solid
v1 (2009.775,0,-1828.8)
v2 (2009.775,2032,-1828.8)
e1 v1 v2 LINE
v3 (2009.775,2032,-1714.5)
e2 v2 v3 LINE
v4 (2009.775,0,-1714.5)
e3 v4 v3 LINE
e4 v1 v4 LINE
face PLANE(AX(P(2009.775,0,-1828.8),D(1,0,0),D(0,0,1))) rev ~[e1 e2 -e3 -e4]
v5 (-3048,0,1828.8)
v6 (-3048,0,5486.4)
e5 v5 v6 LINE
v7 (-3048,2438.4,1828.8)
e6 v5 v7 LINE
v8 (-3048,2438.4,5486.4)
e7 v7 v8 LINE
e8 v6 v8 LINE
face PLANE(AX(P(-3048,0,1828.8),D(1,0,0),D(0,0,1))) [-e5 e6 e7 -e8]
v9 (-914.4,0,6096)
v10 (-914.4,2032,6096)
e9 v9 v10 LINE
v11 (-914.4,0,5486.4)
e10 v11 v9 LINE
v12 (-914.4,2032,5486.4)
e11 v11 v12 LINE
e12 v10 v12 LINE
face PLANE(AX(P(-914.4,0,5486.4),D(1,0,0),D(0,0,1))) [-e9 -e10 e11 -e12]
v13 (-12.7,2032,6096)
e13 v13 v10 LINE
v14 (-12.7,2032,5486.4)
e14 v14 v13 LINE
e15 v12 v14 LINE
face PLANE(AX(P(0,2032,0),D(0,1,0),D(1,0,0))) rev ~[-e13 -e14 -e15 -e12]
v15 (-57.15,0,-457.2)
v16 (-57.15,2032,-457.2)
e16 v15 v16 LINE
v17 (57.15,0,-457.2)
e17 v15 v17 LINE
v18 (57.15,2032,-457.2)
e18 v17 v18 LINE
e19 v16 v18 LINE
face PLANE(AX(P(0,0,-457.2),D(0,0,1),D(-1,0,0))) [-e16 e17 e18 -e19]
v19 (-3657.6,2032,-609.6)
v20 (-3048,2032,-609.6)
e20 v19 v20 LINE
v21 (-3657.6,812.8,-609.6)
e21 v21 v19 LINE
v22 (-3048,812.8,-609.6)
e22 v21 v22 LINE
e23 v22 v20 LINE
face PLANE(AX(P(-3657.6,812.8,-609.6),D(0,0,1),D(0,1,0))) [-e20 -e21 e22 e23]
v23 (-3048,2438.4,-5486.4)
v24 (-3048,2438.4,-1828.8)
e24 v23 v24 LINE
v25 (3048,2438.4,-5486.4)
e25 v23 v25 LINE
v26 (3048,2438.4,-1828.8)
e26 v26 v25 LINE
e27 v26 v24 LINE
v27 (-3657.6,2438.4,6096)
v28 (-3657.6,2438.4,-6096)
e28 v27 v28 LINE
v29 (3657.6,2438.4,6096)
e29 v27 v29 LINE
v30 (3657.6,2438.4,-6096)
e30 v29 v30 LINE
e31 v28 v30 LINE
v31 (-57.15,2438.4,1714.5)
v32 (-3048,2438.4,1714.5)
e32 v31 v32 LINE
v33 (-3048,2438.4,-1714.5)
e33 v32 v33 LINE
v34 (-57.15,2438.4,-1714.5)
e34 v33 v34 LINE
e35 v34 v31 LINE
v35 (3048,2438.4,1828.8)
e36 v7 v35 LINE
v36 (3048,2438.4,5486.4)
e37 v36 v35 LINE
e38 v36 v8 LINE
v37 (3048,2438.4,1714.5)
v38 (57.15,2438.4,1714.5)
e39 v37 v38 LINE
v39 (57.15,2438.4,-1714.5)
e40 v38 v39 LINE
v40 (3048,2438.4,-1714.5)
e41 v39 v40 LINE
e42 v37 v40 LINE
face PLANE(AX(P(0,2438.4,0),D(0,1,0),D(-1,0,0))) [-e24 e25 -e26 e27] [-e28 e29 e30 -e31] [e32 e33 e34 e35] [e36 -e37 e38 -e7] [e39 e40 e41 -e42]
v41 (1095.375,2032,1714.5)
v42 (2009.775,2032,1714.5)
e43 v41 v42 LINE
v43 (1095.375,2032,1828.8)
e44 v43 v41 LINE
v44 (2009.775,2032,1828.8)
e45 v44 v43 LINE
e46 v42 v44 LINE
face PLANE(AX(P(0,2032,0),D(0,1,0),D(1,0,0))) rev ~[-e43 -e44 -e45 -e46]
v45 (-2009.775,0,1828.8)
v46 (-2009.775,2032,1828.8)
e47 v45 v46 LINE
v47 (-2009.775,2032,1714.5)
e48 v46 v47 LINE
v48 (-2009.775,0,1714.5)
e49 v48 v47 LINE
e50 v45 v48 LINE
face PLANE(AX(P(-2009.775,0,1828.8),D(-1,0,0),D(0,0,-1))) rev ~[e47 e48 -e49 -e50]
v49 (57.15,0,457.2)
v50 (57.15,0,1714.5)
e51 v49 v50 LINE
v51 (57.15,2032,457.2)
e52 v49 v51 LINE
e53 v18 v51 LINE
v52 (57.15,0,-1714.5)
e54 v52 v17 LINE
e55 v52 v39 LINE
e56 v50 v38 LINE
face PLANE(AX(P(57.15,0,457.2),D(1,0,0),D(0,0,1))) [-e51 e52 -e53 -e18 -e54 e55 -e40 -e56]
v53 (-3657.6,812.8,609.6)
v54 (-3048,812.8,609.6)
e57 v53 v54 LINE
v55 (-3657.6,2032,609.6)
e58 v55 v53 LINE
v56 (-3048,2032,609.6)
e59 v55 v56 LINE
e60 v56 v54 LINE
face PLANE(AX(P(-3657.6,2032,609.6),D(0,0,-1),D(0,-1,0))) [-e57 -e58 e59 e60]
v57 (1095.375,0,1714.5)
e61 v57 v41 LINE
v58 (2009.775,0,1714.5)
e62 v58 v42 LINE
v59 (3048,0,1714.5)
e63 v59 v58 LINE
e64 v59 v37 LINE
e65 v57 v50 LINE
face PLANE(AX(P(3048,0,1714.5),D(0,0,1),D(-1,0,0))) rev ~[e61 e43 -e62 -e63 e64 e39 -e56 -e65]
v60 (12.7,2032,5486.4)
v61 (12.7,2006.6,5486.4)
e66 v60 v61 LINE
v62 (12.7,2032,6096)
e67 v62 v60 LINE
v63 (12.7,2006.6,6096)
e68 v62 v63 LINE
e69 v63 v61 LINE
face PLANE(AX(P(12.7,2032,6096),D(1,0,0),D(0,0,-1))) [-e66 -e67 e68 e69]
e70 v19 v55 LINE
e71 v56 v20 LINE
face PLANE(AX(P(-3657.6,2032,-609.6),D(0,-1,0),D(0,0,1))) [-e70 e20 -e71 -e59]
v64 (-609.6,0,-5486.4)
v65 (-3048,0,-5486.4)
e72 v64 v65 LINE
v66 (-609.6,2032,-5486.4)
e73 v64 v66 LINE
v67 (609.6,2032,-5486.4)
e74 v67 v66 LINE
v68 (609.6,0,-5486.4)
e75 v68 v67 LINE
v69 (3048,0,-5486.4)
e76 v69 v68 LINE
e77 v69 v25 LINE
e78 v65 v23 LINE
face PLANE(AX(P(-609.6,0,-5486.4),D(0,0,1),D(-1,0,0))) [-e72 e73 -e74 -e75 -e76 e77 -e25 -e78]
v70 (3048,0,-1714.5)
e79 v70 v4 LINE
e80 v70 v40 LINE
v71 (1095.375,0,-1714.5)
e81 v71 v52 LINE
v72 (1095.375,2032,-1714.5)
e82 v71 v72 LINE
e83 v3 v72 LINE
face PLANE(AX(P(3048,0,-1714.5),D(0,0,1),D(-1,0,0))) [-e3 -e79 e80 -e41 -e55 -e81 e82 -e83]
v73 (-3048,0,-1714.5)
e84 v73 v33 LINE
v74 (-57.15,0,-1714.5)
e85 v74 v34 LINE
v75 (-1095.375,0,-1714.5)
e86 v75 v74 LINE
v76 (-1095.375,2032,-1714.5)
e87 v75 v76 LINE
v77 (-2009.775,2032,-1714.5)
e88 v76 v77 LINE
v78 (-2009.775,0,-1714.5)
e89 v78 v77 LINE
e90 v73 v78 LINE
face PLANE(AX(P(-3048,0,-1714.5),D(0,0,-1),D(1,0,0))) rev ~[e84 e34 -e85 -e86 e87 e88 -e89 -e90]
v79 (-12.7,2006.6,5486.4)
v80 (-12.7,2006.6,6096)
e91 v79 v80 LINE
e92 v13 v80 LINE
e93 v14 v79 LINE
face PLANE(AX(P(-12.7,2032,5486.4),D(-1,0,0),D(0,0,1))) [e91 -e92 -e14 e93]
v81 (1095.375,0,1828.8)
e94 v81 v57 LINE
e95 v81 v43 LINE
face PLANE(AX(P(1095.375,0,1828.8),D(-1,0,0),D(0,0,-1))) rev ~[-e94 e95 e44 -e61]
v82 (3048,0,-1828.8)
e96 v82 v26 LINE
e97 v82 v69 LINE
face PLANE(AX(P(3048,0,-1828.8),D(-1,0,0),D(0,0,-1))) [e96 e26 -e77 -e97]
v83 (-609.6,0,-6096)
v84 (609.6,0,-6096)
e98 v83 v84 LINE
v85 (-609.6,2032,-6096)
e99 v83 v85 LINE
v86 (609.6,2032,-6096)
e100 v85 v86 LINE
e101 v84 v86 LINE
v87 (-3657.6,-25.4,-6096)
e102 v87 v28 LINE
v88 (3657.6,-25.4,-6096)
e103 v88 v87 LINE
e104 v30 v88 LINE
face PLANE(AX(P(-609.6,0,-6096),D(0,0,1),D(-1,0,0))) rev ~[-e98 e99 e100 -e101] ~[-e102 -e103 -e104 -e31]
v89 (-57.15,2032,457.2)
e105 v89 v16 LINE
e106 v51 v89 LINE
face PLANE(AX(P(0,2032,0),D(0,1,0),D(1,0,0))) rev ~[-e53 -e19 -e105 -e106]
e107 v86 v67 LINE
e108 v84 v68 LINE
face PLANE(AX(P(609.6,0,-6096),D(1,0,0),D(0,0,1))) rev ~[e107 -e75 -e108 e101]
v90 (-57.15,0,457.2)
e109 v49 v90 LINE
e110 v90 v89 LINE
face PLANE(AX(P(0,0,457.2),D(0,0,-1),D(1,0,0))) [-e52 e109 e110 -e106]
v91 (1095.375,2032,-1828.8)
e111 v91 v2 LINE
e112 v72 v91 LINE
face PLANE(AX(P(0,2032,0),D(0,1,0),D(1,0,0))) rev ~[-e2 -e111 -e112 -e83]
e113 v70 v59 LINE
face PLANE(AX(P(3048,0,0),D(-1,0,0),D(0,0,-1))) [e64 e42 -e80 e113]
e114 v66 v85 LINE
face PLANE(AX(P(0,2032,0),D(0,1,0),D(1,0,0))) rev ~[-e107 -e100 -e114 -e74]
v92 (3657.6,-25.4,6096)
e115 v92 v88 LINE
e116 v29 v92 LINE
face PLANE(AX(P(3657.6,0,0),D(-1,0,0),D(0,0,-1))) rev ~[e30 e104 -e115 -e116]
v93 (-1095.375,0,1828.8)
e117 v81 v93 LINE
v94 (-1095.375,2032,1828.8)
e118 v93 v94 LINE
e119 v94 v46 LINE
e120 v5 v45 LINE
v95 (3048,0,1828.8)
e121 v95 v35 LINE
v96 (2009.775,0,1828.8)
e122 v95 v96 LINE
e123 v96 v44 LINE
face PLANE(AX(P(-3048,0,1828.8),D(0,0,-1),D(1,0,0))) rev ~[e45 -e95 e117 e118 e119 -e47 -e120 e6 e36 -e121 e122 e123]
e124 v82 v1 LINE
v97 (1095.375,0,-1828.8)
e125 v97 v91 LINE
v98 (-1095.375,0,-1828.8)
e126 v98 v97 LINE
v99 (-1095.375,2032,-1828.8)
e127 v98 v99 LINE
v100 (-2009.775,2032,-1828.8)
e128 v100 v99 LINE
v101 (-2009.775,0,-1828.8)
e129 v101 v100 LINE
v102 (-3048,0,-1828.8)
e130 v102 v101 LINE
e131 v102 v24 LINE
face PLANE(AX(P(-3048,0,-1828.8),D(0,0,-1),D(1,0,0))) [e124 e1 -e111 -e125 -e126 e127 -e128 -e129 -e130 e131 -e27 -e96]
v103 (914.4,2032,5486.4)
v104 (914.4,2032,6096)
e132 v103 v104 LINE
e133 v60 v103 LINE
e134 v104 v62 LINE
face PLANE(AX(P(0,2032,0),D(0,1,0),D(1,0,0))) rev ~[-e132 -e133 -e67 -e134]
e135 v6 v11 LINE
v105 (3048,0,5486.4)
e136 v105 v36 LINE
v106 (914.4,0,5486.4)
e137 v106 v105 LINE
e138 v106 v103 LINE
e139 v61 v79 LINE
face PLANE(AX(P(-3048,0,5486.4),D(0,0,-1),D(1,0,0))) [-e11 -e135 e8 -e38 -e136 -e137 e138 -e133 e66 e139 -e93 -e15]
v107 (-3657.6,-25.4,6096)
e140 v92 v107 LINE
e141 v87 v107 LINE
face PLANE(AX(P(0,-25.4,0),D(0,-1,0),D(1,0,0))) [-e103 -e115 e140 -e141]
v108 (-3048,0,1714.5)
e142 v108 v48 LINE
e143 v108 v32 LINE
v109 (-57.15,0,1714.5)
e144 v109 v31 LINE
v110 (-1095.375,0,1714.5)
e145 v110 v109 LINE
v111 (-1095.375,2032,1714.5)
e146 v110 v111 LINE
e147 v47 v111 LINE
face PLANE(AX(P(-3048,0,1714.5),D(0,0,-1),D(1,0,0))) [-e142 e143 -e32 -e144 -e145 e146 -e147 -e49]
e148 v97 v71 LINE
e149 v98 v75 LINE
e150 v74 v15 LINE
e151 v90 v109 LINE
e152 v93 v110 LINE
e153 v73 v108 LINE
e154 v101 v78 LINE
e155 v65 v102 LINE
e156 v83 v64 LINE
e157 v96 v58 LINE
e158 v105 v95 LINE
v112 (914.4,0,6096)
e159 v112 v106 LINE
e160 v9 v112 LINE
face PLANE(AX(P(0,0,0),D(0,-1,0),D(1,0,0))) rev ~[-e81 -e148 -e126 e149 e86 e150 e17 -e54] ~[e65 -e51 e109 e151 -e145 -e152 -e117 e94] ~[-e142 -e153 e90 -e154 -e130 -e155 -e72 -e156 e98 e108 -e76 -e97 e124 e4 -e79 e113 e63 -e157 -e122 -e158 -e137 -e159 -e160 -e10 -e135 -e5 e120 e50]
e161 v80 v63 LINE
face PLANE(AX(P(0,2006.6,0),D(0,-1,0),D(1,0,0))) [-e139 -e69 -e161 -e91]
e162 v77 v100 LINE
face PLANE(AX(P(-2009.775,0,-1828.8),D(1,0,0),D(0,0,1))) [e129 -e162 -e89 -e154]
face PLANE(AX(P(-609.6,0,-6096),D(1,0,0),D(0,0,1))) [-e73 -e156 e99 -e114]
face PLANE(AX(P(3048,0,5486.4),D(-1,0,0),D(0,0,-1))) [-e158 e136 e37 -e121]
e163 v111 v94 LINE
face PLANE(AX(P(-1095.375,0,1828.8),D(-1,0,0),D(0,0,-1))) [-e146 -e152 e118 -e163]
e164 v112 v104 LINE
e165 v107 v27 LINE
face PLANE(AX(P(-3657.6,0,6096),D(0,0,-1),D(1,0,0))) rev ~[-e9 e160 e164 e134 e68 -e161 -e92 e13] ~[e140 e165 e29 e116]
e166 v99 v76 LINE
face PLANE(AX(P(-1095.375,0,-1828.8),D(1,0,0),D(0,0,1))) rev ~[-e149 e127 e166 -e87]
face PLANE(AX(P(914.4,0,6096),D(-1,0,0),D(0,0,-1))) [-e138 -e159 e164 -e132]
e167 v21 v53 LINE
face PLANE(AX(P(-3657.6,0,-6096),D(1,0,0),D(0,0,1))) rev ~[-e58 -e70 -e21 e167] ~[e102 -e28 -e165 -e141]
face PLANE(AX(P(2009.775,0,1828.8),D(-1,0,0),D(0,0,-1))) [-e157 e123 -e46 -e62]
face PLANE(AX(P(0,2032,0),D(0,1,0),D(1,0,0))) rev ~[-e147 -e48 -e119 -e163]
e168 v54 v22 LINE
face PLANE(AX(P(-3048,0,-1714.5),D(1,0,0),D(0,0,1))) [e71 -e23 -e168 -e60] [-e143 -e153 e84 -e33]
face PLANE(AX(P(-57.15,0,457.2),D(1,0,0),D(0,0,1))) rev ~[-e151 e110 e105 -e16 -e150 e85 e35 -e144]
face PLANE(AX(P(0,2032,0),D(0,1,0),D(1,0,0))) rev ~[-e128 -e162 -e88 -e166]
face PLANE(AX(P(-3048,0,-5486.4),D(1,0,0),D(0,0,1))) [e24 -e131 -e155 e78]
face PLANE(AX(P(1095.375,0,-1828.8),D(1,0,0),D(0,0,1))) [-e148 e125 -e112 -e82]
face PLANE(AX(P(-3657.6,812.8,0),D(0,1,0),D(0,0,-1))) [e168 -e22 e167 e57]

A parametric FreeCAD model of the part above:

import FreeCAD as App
import Part
import Sketcher
Q = App.Units.Quantity

doc = App.newDocument("Part")
params = doc.addObject("Spreadsheet::Sheet", "Params")
for row, (alias, value) in enumerate([
    ("sketch1_height", "480 in"),
    ("sketch1_height2", "24 in"),
    ("sketch1_width", "4.5 in"),
    ("pad1_length", "96 in"),
    ("sketch2_width", "48 in"),
    ("pocket1_length", "24 in"),
    ("sketch3_width", "36 in"),
    ("sketch3_width2", "48 in"),
    ("sketch3_width3", "72 in"),
    ("sketch3_height", "24 in"),
    ("sketch3_width4", "4.5 in"),
    ("pad2_length", "16 in"),
    ("sketch4_width", "1 in"),
    ("sketch4_height", "24 in"),
    ("pad3_length", "1 in"),
    ("sketch5_width", "288 in"),
    ("sketch5_height", "480 in"),
    ("pad4_length", "1 in"),
], start=1):
    params.set(f"A{row}", alias)
    params.set(f"B{row}", "=" + value)
    params.setAlias(f"B{row}", alias)

body = doc.addObject("PartDesign::Body", "Body")
body.AllowCompound = True

# Sketch on XZ plane
sketch1 = body.newObject("Sketcher::SketchObject", "Sketch")
sketch1.AttachmentSupport = (doc.getObject("XZ_Plane"), [""])
sketch1.MapMode = "FlatFace"
sketch1.addGeometry(Part.LineSegment(App.Vector(-610, -6096, 0), App.Vector(-3658, -6096, 0)), False)
sketch1.addGeometry(Part.LineSegment(App.Vector(-3658, -6096, 0), App.Vector(-3658, 6096, 0)), False)
sketch1.addGeometry(Part.LineSegment(App.Vector(-3658, 6096, 0), App.Vector(-914, 6096, 0)), False)
sketch1.addGeometry(Part.LineSegment(App.Vector(-914, 6096, 0), App.Vector(-914, 5486, 0)), False)
sketch1.addGeometry(Part.LineSegment(App.Vector(-914, 5486, 0), App.Vector(-3048, 5486, 0)), False)
sketch1.addGeometry(Part.LineSegment(App.Vector(-3048, 5486, 0), App.Vector(-3048, 1829, 0)), False)
sketch1.addGeometry(Part.LineSegment(App.Vector(-3048, 1829, 0), App.Vector(-2010, 1829, 0)), False)
sketch1.addGeometry(Part.LineSegment(App.Vector(-2010, 1829, 0), App.Vector(-2010, 1714, 0)), False)
sketch1.addGeometry(Part.LineSegment(App.Vector(-2010, 1714, 0), App.Vector(-3048, 1714, 0)), False)
sketch1.addGeometry(Part.LineSegment(App.Vector(-3048, 1714, 0), App.Vector(-3048, -1714, 0)), False)
sketch1.addGeometry(Part.LineSegment(App.Vector(-3048, -1714, 0), App.Vector(-2010, -1714, 0)), False)
sketch1.addGeometry(Part.LineSegment(App.Vector(-2010, -1714, 0), App.Vector(-2010, -1829, 0)), False)
sketch1.addGeometry(Part.LineSegment(App.Vector(-2010, -1829, 0), App.Vector(-3048, -1829, 0)), False)
sketch1.addGeometry(Part.LineSegment(App.Vector(-3048, -1829, 0), App.Vector(-3048, -5486, 0)), False)
sketch1.addGeometry(Part.LineSegment(App.Vector(-3048, -5486, 0), App.Vector(-610, -5486, 0)), False)
sketch1.addGeometry(Part.LineSegment(App.Vector(-610, -5486, 0), App.Vector(-610, -6096, 0)), False)
sketch1.addGeometry(Part.LineSegment(App.Vector(-57, -457, 0), App.Vector(57, -457, 0)), False)
sketch1.addGeometry(Part.LineSegment(App.Vector(57, -457, 0), App.Vector(57, -1714, 0)), False)
sketch1.addGeometry(Part.LineSegment(App.Vector(57, -1714, 0), App.Vector(1095, -1714, 0)), False)
sketch1.addGeometry(Part.LineSegment(App.Vector(1095, -1714, 0), App.Vector(1095, -1829, 0)), False)
sketch1.addGeometry(Part.LineSegment(App.Vector(1095, -1829, 0), App.Vector(-1095, -1829, 0)), False)
sketch1.addGeometry(Part.LineSegment(App.Vector(-1095, -1829, 0), App.Vector(-1095, -1714, 0)), False)
sketch1.addGeometry(Part.LineSegment(App.Vector(-1095, -1714, 0), App.Vector(-57, -1714, 0)), False)
sketch1.addGeometry(Part.LineSegment(App.Vector(-57, -1714, 0), App.Vector(-57, -457, 0)), False)
sketch1.addGeometry(Part.LineSegment(App.Vector(3048, -1714, 0), App.Vector(3048, 1714, 0)), False)
sketch1.addGeometry(Part.LineSegment(App.Vector(3048, 1714, 0), App.Vector(2010, 1714, 0)), False)
sketch1.addGeometry(Part.LineSegment(App.Vector(2010, 1714, 0), App.Vector(2010, 1829, 0)), False)
sketch1.addGeometry(Part.LineSegment(App.Vector(2010, 1829, 0), App.Vector(3048, 1829, 0)), False)
sketch1.addGeometry(Part.LineSegment(App.Vector(3048, 1829, 0), App.Vector(3048, 5486, 0)), False)
sketch1.addGeometry(Part.LineSegment(App.Vector(3048, 5486, 0), App.Vector(914, 5486, 0)), False)
sketch1.addGeometry(Part.LineSegment(App.Vector(914, 5486, 0), App.Vector(914, 6096, 0)), False)
sketch1.addGeometry(Part.LineSegment(App.Vector(914, 6096, 0), App.Vector(3658, 6096, 0)), False)
sketch1.addGeometry(Part.LineSegment(App.Vector(3658, 6096, 0), App.Vector(3658, -6096, 0)), False)
sketch1.addGeometry(Part.LineSegment(App.Vector(3658, -6096, 0), App.Vector(610, -6096, 0)), False)
sketch1.addGeometry(Part.LineSegment(App.Vector(610, -6096, 0), App.Vector(610, -5486, 0)), False)
sketch1.addGeometry(Part.LineSegment(App.Vector(610, -5486, 0), App.Vector(3048, -5486, 0)), False)
sketch1.addGeometry(Part.LineSegment(App.Vector(3048, -5486, 0), App.Vector(3048, -1829, 0)), False)
sketch1.addGeometry(Part.LineSegment(App.Vector(3048, -1829, 0), App.Vector(2010, -1829, 0)), False)
sketch1.addGeometry(Part.LineSegment(App.Vector(2010, -1829, 0), App.Vector(2010, -1714, 0)), False)
sketch1.addGeometry(Part.LineSegment(App.Vector(2010, -1714, 0), App.Vector(3048, -1714, 0)), False)
sketch1.addGeometry(Part.LineSegment(App.Vector(57, 457, 0), App.Vector(-57, 457, 0)), False)
sketch1.addGeometry(Part.LineSegment(App.Vector(-57, 457, 0), App.Vector(-57, 1714, 0)), False)
sketch1.addGeometry(Part.LineSegment(App.Vector(-57, 1714, 0), App.Vector(-1095, 1714, 0)), False)
sketch1.addGeometry(Part.LineSegment(App.Vector(-1095, 1714, 0), App.Vector(-1095, 1829, 0)), False)
sketch1.addGeometry(Part.LineSegment(App.Vector(-1095, 1829, 0), App.Vector(1095, 1829, 0)), False)
sketch1.addGeometry(Part.LineSegment(App.Vector(1095, 1829, 0), App.Vector(1095, 1714, 0)), False)
sketch1.addGeometry(Part.LineSegment(App.Vector(1095, 1714, 0), App.Vector(57, 1714, 0)), False)
sketch1.addGeometry(Part.LineSegment(App.Vector(57, 1714, 0), App.Vector(57, 457, 0)), False)
sketch1.addConstraint(Sketcher.Constraint("Coincident", 0, 2, 1, 1))
sketch1.addConstraint(Sketcher.Constraint("Coincident", 1, 2, 2, 1))
sketch1.addConstraint(Sketcher.Constraint("Coincident", 2, 2, 3, 1))
sketch1.addConstraint(Sketcher.Constraint("Coincident", 3, 2, 4, 1))
sketch1.addConstraint(Sketcher.Constraint("Coincident", 4, 2, 5, 1))
sketch1.addConstraint(Sketcher.Constraint("Coincident", 5, 2, 6, 1))
sketch1.addConstraint(Sketcher.Constraint("Coincident", 6, 2, 7, 1))
sketch1.addConstraint(Sketcher.Constraint("Coincident", 7, 2, 8, 1))
sketch1.addConstraint(Sketcher.Constraint("Coincident", 8, 2, 9, 1))
sketch1.addConstraint(Sketcher.Constraint("Coincident", 9, 2, 10, 1))
sketch1.addConstraint(Sketcher.Constraint("Coincident", 10, 2, 11, 1))
sketch1.addConstraint(Sketcher.Constraint("Coincident", 11, 2, 12, 1))
sketch1.addConstraint(Sketcher.Constraint("Coincident", 12, 2, 13, 1))
sketch1.addConstraint(Sketcher.Constraint("Coincident", 13, 2, 14, 1))
sketch1.addConstraint(Sketcher.Constraint("Coincident", 14, 2, 15, 1))
sketch1.addConstraint(Sketcher.Constraint("Coincident", 15, 2, 0, 1))
sketch1.addConstraint(Sketcher.Constraint("Coincident", 16, 2, 17, 1))
sketch1.addConstraint(Sketcher.Constraint("Coincident", 17, 2, 18, 1))
sketch1.addConstraint(Sketcher.Constraint("Coincident", 18, 2, 19, 1))
sketch1.addConstraint(Sketcher.Constraint("Coincident", 19, 2, 20, 1))
sketch1.addConstraint(Sketcher.Constraint("Coincident", 20, 2, 21, 1))
sketch1.addConstraint(Sketcher.Constraint("Coincident", 21, 2, 22, 1))
sketch1.addConstraint(Sketcher.Constraint("Coincident", 22, 2, 23, 1))
sketch1.addConstraint(Sketcher.Constraint("Coincident", 23, 2, 16, 1))
sketch1.addConstraint(Sketcher.Constraint("Coincident", 24, 2, 25, 1))
sketch1.addConstraint(Sketcher.Constraint("Coincident", 25, 2, 26, 1))
sketch1.addConstraint(Sketcher.Constraint("Coincident", 26, 2, 27, 1))
sketch1.addConstraint(Sketcher.Constraint("Coincident", 27, 2, 28, 1))
sketch1.addConstraint(Sketcher.Constraint("Coincident", 28, 2, 29, 1))
sketch1.addConstraint(Sketcher.Constraint("Coincident", 29, 2, 30, 1))
sketch1.addConstraint(Sketcher.Constraint("Coincident", 30, 2, 31, 1))
sketch1.addConstraint(Sketcher.Constraint("Coincident", 31, 2, 32, 1))
sketch1.addConstraint(Sketcher.Constraint("Coincident", 32, 2, 33, 1))
sketch1.addConstraint(Sketcher.Constraint("Coincident", 33, 2, 34, 1))
sketch1.addConstraint(Sketcher.Constraint("Coincident", 34, 2, 35, 1))
sketch1.addConstraint(Sketcher.Constraint("Coincident", 35, 2, 36, 1))
sketch1.addConstraint(Sketcher.Constraint("Coincident", 36, 2, 37, 1))
sketch1.addConstraint(Sketcher.Constraint("Coincident", 37, 2, 38, 1))
sketch1.addConstraint(Sketcher.Constraint("Coincident", 38, 2, 39, 1))
sketch1.addConstraint(Sketcher.Constraint("Coincident", 39, 2, 24, 1))
sketch1.addConstraint(Sketcher.Constraint("Coincident", 40, 2, 41, 1))
sketch1.addConstraint(Sketcher.Constraint("Coincident", 41, 2, 42, 1))
sketch1.addConstraint(Sketcher.Constraint("Coincident", 42, 2, 43, 1))
sketch1.addConstraint(Sketcher.Constraint("Coincident", 43, 2, 44, 1))
sketch1.addConstraint(Sketcher.Constraint("Coincident", 44, 2, 45, 1))
sketch1.addConstraint(Sketcher.Constraint("Coincident", 45, 2, 46, 1))
sketch1.addConstraint(Sketcher.Constraint("Coincident", 46, 2, 47, 1))
sketch1.addConstraint(Sketcher.Constraint("Coincident", 47, 2, 40, 1))
sketch1.addConstraint(Sketcher.Constraint("Horizontal", 0))
sketch1.addConstraint(Sketcher.Constraint("Vertical", 1))
sketch1.addConstraint(Sketcher.Constraint("Horizontal", 2))
sketch1.addConstraint(Sketcher.Constraint("Vertical", 3))
sketch1.addConstraint(Sketcher.Constraint("Horizontal", 4))
sketch1.addConstraint(Sketcher.Constraint("Vertical", 5))
sketch1.addConstraint(Sketcher.Constraint("Horizontal", 6))
sketch1.addConstraint(Sketcher.Constraint("Vertical", 7))
sketch1.addConstraint(Sketcher.Constraint("Horizontal", 8))
sketch1.addConstraint(Sketcher.Constraint("Vertical", 9))
sketch1.addConstraint(Sketcher.Constraint("Horizontal", 10))
sketch1.addConstraint(Sketcher.Constraint("Vertical", 11))
sketch1.addConstraint(Sketcher.Constraint("Horizontal", 12))
sketch1.addConstraint(Sketcher.Constraint("Vertical", 13))
sketch1.addConstraint(Sketcher.Constraint("Horizontal", 14))
sketch1.addConstraint(Sketcher.Constraint("Vertical", 15))
sketch1.addConstraint(Sketcher.Constraint("Horizontal", 16))
sketch1.addConstraint(Sketcher.Constraint("Vertical", 17))
sketch1.addConstraint(Sketcher.Constraint("Horizontal", 18))
sketch1.addConstraint(Sketcher.Constraint("Vertical", 19))
sketch1.addConstraint(Sketcher.Constraint("Horizontal", 20))
sketch1.addConstraint(Sketcher.Constraint("Vertical", 21))
sketch1.addConstraint(Sketcher.Constraint("Horizontal", 22))
sketch1.addConstraint(Sketcher.Constraint("Vertical", 23))
sketch1.addConstraint(Sketcher.Constraint("Vertical", 24))
sketch1.addConstraint(Sketcher.Constraint("Horizontal", 25))
sketch1.addConstraint(Sketcher.Constraint("Vertical", 26))
sketch1.addConstraint(Sketcher.Constraint("Horizontal", 27))
sketch1.addConstraint(Sketcher.Constraint("Vertical", 28))
sketch1.addConstraint(Sketcher.Constraint("Horizontal", 29))
sketch1.addConstraint(Sketcher.Constraint("Vertical", 30))
sketch1.addConstraint(Sketcher.Constraint("Horizontal", 31))
sketch1.addConstraint(Sketcher.Constraint("Vertical", 32))
sketch1.addConstraint(Sketcher.Constraint("Horizontal", 33))
sketch1.addConstraint(Sketcher.Constraint("Vertical", 34))
sketch1.addConstraint(Sketcher.Constraint("Horizontal", 35))
sketch1.addConstraint(Sketcher.Constraint("Vertical", 36))
sketch1.addConstraint(Sketcher.Constraint("Horizontal", 37))
sketch1.addConstraint(Sketcher.Constraint("Vertical", 38))
sketch1.addConstraint(Sketcher.Constraint("Horizontal", 39))
sketch1.addConstraint(Sketcher.Constraint("Horizontal", 40))
sketch1.addConstraint(Sketcher.Constraint("Vertical", 41))
sketch1.addConstraint(Sketcher.Constraint("Horizontal", 42))
sketch1.addConstraint(Sketcher.Constraint("Vertical", 43))
sketch1.addConstraint(Sketcher.Constraint("Horizontal", 44))
sketch1.addConstraint(Sketcher.Constraint("Vertical", 45))
sketch1.addConstraint(Sketcher.Constraint("Horizontal", 46))
sketch1.addConstraint(Sketcher.Constraint("Vertical", 47))
sketch1.addConstraint(Sketcher.Constraint("Symmetric", 9, 2, 24, 2, -1, 1))
sketch1.addConstraint(Sketcher.Constraint("Symmetric", 11, 2, 26, 2, -1, 1))
sketch1.addConstraint(Sketcher.Constraint("Symmetric", 13, 2, 28, 2, -1, 1))
sketch1.addConstraint(Sketcher.Constraint("Symmetric", 0, 2, 31, 2, -1, 1))
sketch1.addConstraint(Sketcher.Constraint("Symmetric", 4, 2, 35, 2, -1, 1))
sketch1.addConstraint(Sketcher.Constraint("Symmetric", 6, 2, 37, 2, -1, 1))
sketch1.addConstraint(Sketcher.Constraint("Symmetric", 16, 2, 40, 2, -1, 1))
sketch1.addConstraint(Sketcher.Constraint("Symmetric", 18, 2, 42, 2, -1, 1))
sketch1.addConstraint(Sketcher.Constraint("Symmetric", 20, 2, 44, 2, -1, 1))
sketch1.addConstraint(Sketcher.Constraint("Symmetric", 22, 2, 46, 2, -1, 1))
sketch1.addConstraint(Sketcher.Constraint("Symmetric", 18, 2, 21, 2, -2))
sketch1.addConstraint(Sketcher.Constraint("Symmetric", 7, 2, 25, 2, -2))
sketch1.addConstraint(Sketcher.Constraint("Symmetric", 5, 2, 27, 2, -2))
sketch1.addConstraint(Sketcher.Constraint("Symmetric", 3, 2, 29, 2, -2))
sketch1.addConstraint(Sketcher.Constraint("Symmetric", 15, 2, 33, 2, -2))
sketch1.addConstraint(Sketcher.Constraint("Horizontal", 10, 2, 17, 2))
sketch1.addConstraint(Sketcher.Constraint("Horizontal", 12, 2, 19, 2))
sketch1.addConstraint(Sketcher.Constraint("Horizontal", 2, 2, 30, 2))
sketch1.addConstraint(Sketcher.Constraint("Horizontal", 22, 2, 38, 2))
sketch1.addConstraint(Sketcher.Constraint("Vertical", 5, 2, 8, 2))
sketch1.addConstraint(Sketcher.Constraint("Vertical", 23, 2, 40, 2))
sketch1.addConstraint(Sketcher.Constraint("Equal", 12, 18))
sketch1.addConstraint(Sketcher.Constraint("Equal", 40, 7))
sketch1.addConstraint(Sketcher.Constraint("DistanceY", 1, 1, 1, 2, Q("480 in")))
sketch1.addConstraint(Sketcher.Constraint("DistanceY", 3, 2, 3, 1, Q("24 in")))
sketch1.addConstraint(Sketcher.Constraint("DistanceX", 16, 1, 16, 2, Q("4.5 in")))
sketch1.addConstraint(Sketcher.Constraint("DistanceX", 2, 2, -1, 1, Q("36 in")))
sketch1.addConstraint(Sketcher.Constraint("DistanceY", -1, 1, 5, 2, Q("72 in")))
sketch1.addConstraint(Sketcher.Constraint("DistanceX", 14, 2, -1, 1, Q("24 in")))
sketch1.addConstraint(Sketcher.Constraint("DistanceX", 1, 2, 4, 2, Q("24 in")))
sketch1.addConstraint(Sketcher.Constraint("DistanceX", 11, 2, 20, 2, Q("36 in")))
sketch1.addConstraint(Sketcher.Constraint("DistanceX", 15, 2, 32, 2, Q("168 in")))
sketch1.addConstraint(Sketcher.Constraint("DistanceY", 23, 2, 40, 2, Q("36 in")))
sketch1.setExpression("Constraints[119]", "Params.sketch1_height")
sketch1.setExpression("Constraints[120]", "Params.sketch1_height2")
sketch1.setExpression("Constraints[121]", "Params.sketch1_width")
pad1 = body.newObject("PartDesign::Pad", "Pad")
pad1.Profile = sketch1
pad1.setExpression("Length", "Params.pad1_length")
pad1.Reversed = True

# Sketch on YZ plane
sketch2 = body.newObject("Sketcher::SketchObject", "Sketch001")
sketch2.AttachmentSupport = (doc.getObject("YZ_Plane"), [""])
sketch2.MapMode = "FlatFace"
sketch2.AttachmentOffset = App.Placement(App.Vector(0, 0, -144 * 25.4), App.Rotation())
sketch2.addGeometry(Part.LineSegment(App.Vector(2032, -610, 0), App.Vector(813, -610, 0)), False)
sketch2.addGeometry(Part.LineSegment(App.Vector(813, -610, 0), App.Vector(813, 610, 0)), False)
sketch2.addGeometry(Part.LineSegment(App.Vector(813, 610, 0), App.Vector(2032, 610, 0)), False)
sketch2.addGeometry(Part.LineSegment(App.Vector(2032, 610, 0), App.Vector(2032, -610, 0)), False)
sketch2.addConstraint(Sketcher.Constraint("Coincident", 0, 2, 1, 1))
sketch2.addConstraint(Sketcher.Constraint("Coincident", 1, 2, 2, 1))
sketch2.addConstraint(Sketcher.Constraint("Coincident", 2, 2, 3, 1))
sketch2.addConstraint(Sketcher.Constraint("Coincident", 3, 2, 0, 1))
sketch2.addConstraint(Sketcher.Constraint("Horizontal", 0))
sketch2.addConstraint(Sketcher.Constraint("Vertical", 1))
sketch2.addConstraint(Sketcher.Constraint("Horizontal", 2))
sketch2.addConstraint(Sketcher.Constraint("Vertical", 3))
sketch2.addConstraint(Sketcher.Constraint("Equal", 2, 1))
sketch2.addConstraint(Sketcher.Constraint("DistanceX", 0, 2, 0, 1, Q("48 in")))
sketch2.addConstraint(Sketcher.Constraint("DistanceX", -1, 1, 0, 2, Q("32 in")))
sketch2.addConstraint(Sketcher.Constraint("DistanceY", 0, 2, -1, 1, Q("24 in")))
sketch2.setExpression("Constraints[9]", "Params.sketch2_width")
pocket1 = body.newObject("PartDesign::Pocket", "Pocket")
pocket1.Profile = sketch2
pocket1.setExpression("Length", "Params.pocket1_length")
pocket1.Reversed = True

# Sketch on XZ plane
sketch3 = body.newObject("Sketcher::SketchObject", "Sketch002")
sketch3.AttachmentSupport = (doc.getObject("XZ_Plane"), [""])
sketch3.MapMode = "FlatFace"
sketch3.AttachmentOffset = App.Placement(App.Vector(0, 0, -96 * 25.4), App.Rotation())
sketch3.addGeometry(Part.LineSegment(App.Vector(1095, -1829, 0), App.Vector(1095, -1714, 0)), False)
sketch3.addGeometry(Part.LineSegment(App.Vector(1095, -1714, 0), App.Vector(2010, -1714, 0)), False)
sketch3.addGeometry(Part.LineSegment(App.Vector(2010, -1714, 0), App.Vector(2010, -1829, 0)), False)
sketch3.addGeometry(Part.LineSegment(App.Vector(2010, -1829, 0), App.Vector(1095, -1829, 0)), False)
sketch3.addGeometry(Part.LineSegment(App.Vector(57, 457, 0), App.Vector(57, -457, 0)), False)
sketch3.addGeometry(Part.LineSegment(App.Vector(57, -457, 0), App.Vector(-57, -457, 0)), False)
sketch3.addGeometry(Part.LineSegment(App.Vector(-57, -457, 0), App.Vector(-57, 457, 0)), False)
sketch3.addGeometry(Part.LineSegment(App.Vector(-57, 457, 0), App.Vector(57, 457, 0)), False)
sketch3.addGeometry(Part.LineSegment(App.Vector(-1095, -1714, 0), App.Vector(-1095, -1829, 0)), False)
sketch3.addGeometry(Part.LineSegment(App.Vector(-1095, -1829, 0), App.Vector(-2010, -1829, 0)), False)
sketch3.addGeometry(Part.LineSegment(App.Vector(-2010, -1829, 0), App.Vector(-2010, -1714, 0)), False)
sketch3.addGeometry(Part.LineSegment(App.Vector(-2010, -1714, 0), App.Vector(-1095, -1714, 0)), False)
sketch3.addGeometry(Part.LineSegment(App.Vector(2010, 1714, 0), App.Vector(1095, 1714, 0)), False)
sketch3.addGeometry(Part.LineSegment(App.Vector(1095, 1714, 0), App.Vector(1095, 1829, 0)), False)
sketch3.addGeometry(Part.LineSegment(App.Vector(1095, 1829, 0), App.Vector(2010, 1829, 0)), False)
sketch3.addGeometry(Part.LineSegment(App.Vector(2010, 1829, 0), App.Vector(2010, 1714, 0)), False)
sketch3.addGeometry(Part.LineSegment(App.Vector(-1095, 1829, 0), App.Vector(-1095, 1714, 0)), False)
sketch3.addGeometry(Part.LineSegment(App.Vector(-1095, 1714, 0), App.Vector(-2010, 1714, 0)), False)
sketch3.addGeometry(Part.LineSegment(App.Vector(-2010, 1714, 0), App.Vector(-2010, 1829, 0)), False)
sketch3.addGeometry(Part.LineSegment(App.Vector(-2010, 1829, 0), App.Vector(-1095, 1829, 0)), False)
sketch3.addGeometry(Part.LineSegment(App.Vector(-610, -5486, 0), App.Vector(610, -5486, 0)), False)
sketch3.addGeometry(Part.LineSegment(App.Vector(610, -5486, 0), App.Vector(610, -6096, 0)), False)
sketch3.addGeometry(Part.LineSegment(App.Vector(610, -6096, 0), App.Vector(-610, -6096, 0)), False)
sketch3.addGeometry(Part.LineSegment(App.Vector(-610, -6096, 0), App.Vector(-610, -5486, 0)), False)
sketch3.addGeometry(Part.LineSegment(App.Vector(914, 6096, 0), App.Vector(914, 5486, 0)), False)
sketch3.addGeometry(Part.LineSegment(App.Vector(914, 5486, 0), App.Vector(-914, 5486, 0)), False)
sketch3.addGeometry(Part.LineSegment(App.Vector(-914, 5486, 0), App.Vector(-914, 6096, 0)), False)
sketch3.addGeometry(Part.LineSegment(App.Vector(-914, 6096, 0), App.Vector(914, 6096, 0)), False)
sketch3.addConstraint(Sketcher.Constraint("Coincident", 0, 2, 1, 1))
sketch3.addConstraint(Sketcher.Constraint("Coincident", 1, 2, 2, 1))
sketch3.addConstraint(Sketcher.Constraint("Coincident", 2, 2, 3, 1))
sketch3.addConstraint(Sketcher.Constraint("Coincident", 3, 2, 0, 1))
sketch3.addConstraint(Sketcher.Constraint("Coincident", 4, 2, 5, 1))
sketch3.addConstraint(Sketcher.Constraint("Coincident", 5, 2, 6, 1))
sketch3.addConstraint(Sketcher.Constraint("Coincident", 6, 2, 7, 1))
sketch3.addConstraint(Sketcher.Constraint("Coincident", 7, 2, 4, 1))
sketch3.addConstraint(Sketcher.Constraint("Coincident", 8, 2, 9, 1))
sketch3.addConstraint(Sketcher.Constraint("Coincident", 9, 2, 10, 1))
sketch3.addConstraint(Sketcher.Constraint("Coincident", 10, 2, 11, 1))
sketch3.addConstraint(Sketcher.Constraint("Coincident", 11, 2, 8, 1))
sketch3.addConstraint(Sketcher.Constraint("Coincident", 12, 2, 13, 1))
sketch3.addConstraint(Sketcher.Constraint("Coincident", 13, 2, 14, 1))
sketch3.addConstraint(Sketcher.Constraint("Coincident", 14, 2, 15, 1))
sketch3.addConstraint(Sketcher.Constraint("Coincident", 15, 2, 12, 1))
sketch3.addConstraint(Sketcher.Constraint("Coincident", 16, 2, 17, 1))
sketch3.addConstraint(Sketcher.Constraint("Coincident", 17, 2, 18, 1))
sketch3.addConstraint(Sketcher.Constraint("Coincident", 18, 2, 19, 1))
sketch3.addConstraint(Sketcher.Constraint("Coincident", 19, 2, 16, 1))
sketch3.addConstraint(Sketcher.Constraint("Coincident", 20, 2, 21, 1))
sketch3.addConstraint(Sketcher.Constraint("Coincident", 21, 2, 22, 1))
sketch3.addConstraint(Sketcher.Constraint("Coincident", 22, 2, 23, 1))
sketch3.addConstraint(Sketcher.Constraint("Coincident", 23, 2, 20, 1))
sketch3.addConstraint(Sketcher.Constraint("Coincident", 24, 2, 25, 1))
sketch3.addConstraint(Sketcher.Constraint("Coincident", 25, 2, 26, 1))
sketch3.addConstraint(Sketcher.Constraint("Coincident", 26, 2, 27, 1))
sketch3.addConstraint(Sketcher.Constraint("Coincident", 27, 2, 24, 1))
sketch3.addConstraint(Sketcher.Constraint("Vertical", 0))
sketch3.addConstraint(Sketcher.Constraint("Horizontal", 1))
sketch3.addConstraint(Sketcher.Constraint("Vertical", 2))
sketch3.addConstraint(Sketcher.Constraint("Horizontal", 3))
sketch3.addConstraint(Sketcher.Constraint("Vertical", 4))
sketch3.addConstraint(Sketcher.Constraint("Horizontal", 5))
sketch3.addConstraint(Sketcher.Constraint("Vertical", 6))
sketch3.addConstraint(Sketcher.Constraint("Horizontal", 7))
sketch3.addConstraint(Sketcher.Constraint("Vertical", 8))
sketch3.addConstraint(Sketcher.Constraint("Horizontal", 9))
sketch3.addConstraint(Sketcher.Constraint("Vertical", 10))
sketch3.addConstraint(Sketcher.Constraint("Horizontal", 11))
sketch3.addConstraint(Sketcher.Constraint("Horizontal", 12))
sketch3.addConstraint(Sketcher.Constraint("Vertical", 13))
sketch3.addConstraint(Sketcher.Constraint("Horizontal", 14))
sketch3.addConstraint(Sketcher.Constraint("Vertical", 15))
sketch3.addConstraint(Sketcher.Constraint("Vertical", 16))
sketch3.addConstraint(Sketcher.Constraint("Horizontal", 17))
sketch3.addConstraint(Sketcher.Constraint("Vertical", 18))
sketch3.addConstraint(Sketcher.Constraint("Horizontal", 19))
sketch3.addConstraint(Sketcher.Constraint("Horizontal", 20))
sketch3.addConstraint(Sketcher.Constraint("Vertical", 21))
sketch3.addConstraint(Sketcher.Constraint("Horizontal", 22))
sketch3.addConstraint(Sketcher.Constraint("Vertical", 23))
sketch3.addConstraint(Sketcher.Constraint("Vertical", 24))
sketch3.addConstraint(Sketcher.Constraint("Horizontal", 25))
sketch3.addConstraint(Sketcher.Constraint("Vertical", 26))
sketch3.addConstraint(Sketcher.Constraint("Horizontal", 27))
sketch3.addConstraint(Sketcher.Constraint("Symmetric", 4, 2, 6, 2, -1, 1))
sketch3.addConstraint(Sketcher.Constraint("Symmetric", 11, 2, 12, 2, -1, 1))
sketch3.addConstraint(Sketcher.Constraint("Symmetric", 9, 2, 14, 2, -1, 1))
sketch3.addConstraint(Sketcher.Constraint("Symmetric", 0, 2, 16, 2, -1, 1))
sketch3.addConstraint(Sketcher.Constraint("Symmetric", 2, 2, 18, 2, -1, 1))
sketch3.addConstraint(Sketcher.Constraint("Symmetric", 3, 2, 8, 2, -2))
sketch3.addConstraint(Sketcher.Constraint("Symmetric", 1, 2, 10, 2, -2))
sketch3.addConstraint(Sketcher.Constraint("Equal", 7, 0))
sketch3.addConstraint(Sketcher.Constraint("Equal", 19, 4))
sketch3.addConstraint(Sketcher.Constraint("Equal", 23, 24))
sketch3.addConstraint(Sketcher.Constraint("DistanceX", 1, 1, 1, 2, Q("36 in")))
sketch3.addConstraint(Sketcher.Constraint("DistanceX", 20, 1, 20, 2, Q("48 in")))
sketch3.addConstraint(Sketcher.Constraint("DistanceX", 25, 2, 25, 1, Q("72 in")))
sketch3.addConstraint(Sketcher.Constraint("DistanceY", 21, 2, 21, 1, Q("24 in")))
sketch3.addConstraint(Sketcher.Constraint("DistanceX", 5, 2, 5, 1, Q("4.5 in")))
sketch3.addConstraint(Sketcher.Constraint("DistanceY", 2, 2, -1, 1, Q("72 in")))
sketch3.addConstraint(Sketcher.Constraint("DistanceX", -1, 1, 20, 2, Q("24 in")))
sketch3.addConstraint(Sketcher.Constraint("DistanceY", 20, 2, -1, 1, Q("216 in")))
sketch3.addConstraint(Sketcher.Constraint("DistanceX", -1, 1, 24, 2, Q("36 in")))
sketch3.addConstraint(Sketcher.Constraint("DistanceY", -1, 1, 24, 2, Q("216 in")))
sketch3.addConstraint(Sketcher.Constraint("DistanceX", 8, 2, 3, 2, Q("86.25 in")))
sketch3.setExpression("Constraints[66]", "Params.sketch3_width")
sketch3.setExpression("Constraints[67]", "Params.sketch3_width2")
sketch3.setExpression("Constraints[68]", "Params.sketch3_width3")
sketch3.setExpression("Constraints[69]", "Params.sketch3_height")
sketch3.setExpression("Constraints[70]", "Params.sketch3_width4")
pad2 = body.newObject("PartDesign::Pad", "Pad001")
pad2.Profile = sketch3
pad2.setExpression("Length", "Params.pad2_length")

# Sketch on XZ plane
sketch4 = body.newObject("Sketcher::SketchObject", "Sketch003")
sketch4.AttachmentSupport = (doc.getObject("XZ_Plane"), [""])
sketch4.MapMode = "FlatFace"
sketch4.AttachmentOffset = App.Placement(App.Vector(0, 0, -80 * 25.4), App.Rotation())
sketch4.addGeometry(Part.LineSegment(App.Vector(13, 5486, 0), App.Vector(13, 6096, 0)), False)
sketch4.addGeometry(Part.LineSegment(App.Vector(13, 6096, 0), App.Vector(-13, 6096, 0)), False)
sketch4.addGeometry(Part.LineSegment(App.Vector(-13, 6096, 0), App.Vector(-13, 5486, 0)), False)
sketch4.addGeometry(Part.LineSegment(App.Vector(-13, 5486, 0), App.Vector(13, 5486, 0)), False)
sketch4.addConstraint(Sketcher.Constraint("Coincident", 0, 2, 1, 1))
sketch4.addConstraint(Sketcher.Constraint("Coincident", 1, 2, 2, 1))
sketch4.addConstraint(Sketcher.Constraint("Coincident", 2, 2, 3, 1))
sketch4.addConstraint(Sketcher.Constraint("Coincident", 3, 2, 0, 1))
sketch4.addConstraint(Sketcher.Constraint("Vertical", 0))
sketch4.addConstraint(Sketcher.Constraint("Horizontal", 1))
sketch4.addConstraint(Sketcher.Constraint("Vertical", 2))
sketch4.addConstraint(Sketcher.Constraint("Horizontal", 3))
sketch4.addConstraint(Sketcher.Constraint("DistanceX", 1, 2, 1, 1, Q("1 in")))
sketch4.addConstraint(Sketcher.Constraint("DistanceY", 0, 1, 0, 2, Q("24 in")))
sketch4.addConstraint(Sketcher.Constraint("DistanceY", -1, 1, 0, 2, Q("240 in")))
sketch4.addConstraint(Sketcher.Constraint("DistanceX", -1, 1, 0, 2, Q("0.5 in")))
sketch4.setExpression("Constraints[8]", "Params.sketch4_width")
sketch4.setExpression("Constraints[9]", "Params.sketch4_height")
pad3 = body.newObject("PartDesign::Pad", "Pad002")
pad3.Profile = sketch4
pad3.setExpression("Length", "Params.pad3_length")

# Sketch on XZ plane
sketch5 = body.newObject("Sketcher::SketchObject", "Sketch004")
sketch5.AttachmentSupport = (doc.getObject("XZ_Plane"), [""])
sketch5.MapMode = "FlatFace"
sketch5.addGeometry(Part.LineSegment(App.Vector(3658, -6096, 0), App.Vector(3658, 6096, 0)), False)
sketch5.addGeometry(Part.LineSegment(App.Vector(3658, 6096, 0), App.Vector(-3658, 6096, 0)), False)
sketch5.addGeometry(Part.LineSegment(App.Vector(-3658, 6096, 0), App.Vector(-3658, -6096, 0)), False)
sketch5.addGeometry(Part.LineSegment(App.Vector(-3658, -6096, 0), App.Vector(3658, -6096, 0)), False)
sketch5.addConstraint(Sketcher.Constraint("Coincident", 0, 2, 1, 1))
sketch5.addConstraint(Sketcher.Constraint("Coincident", 1, 2, 2, 1))
sketch5.addConstraint(Sketcher.Constraint("Coincident", 2, 2, 3, 1))
sketch5.addConstraint(Sketcher.Constraint("Coincident", 3, 2, 0, 1))
sketch5.addConstraint(Sketcher.Constraint("Vertical", 0))
sketch5.addConstraint(Sketcher.Constraint("Horizontal", 1))
sketch5.addConstraint(Sketcher.Constraint("Vertical", 2))
sketch5.addConstraint(Sketcher.Constraint("Horizontal", 3))
sketch5.addConstraint(Sketcher.Constraint("Symmetric", 0, 2, 2, 2, -1, 1))
sketch5.addConstraint(Sketcher.Constraint("DistanceX", 1, 2, 1, 1, Q("288 in")))
sketch5.addConstraint(Sketcher.Constraint("DistanceY", 0, 1, 0, 2, Q("480 in")))
sketch5.setExpression("Constraints[9]", "Params.sketch5_width")
sketch5.setExpression("Constraints[10]", "Params.sketch5_height")
pad4 = body.newObject("PartDesign::Pad", "Pad003")
pad4.Profile = sketch5
pad4.setExpression("Length", "Params.pad4_length")

doc.recompute()
